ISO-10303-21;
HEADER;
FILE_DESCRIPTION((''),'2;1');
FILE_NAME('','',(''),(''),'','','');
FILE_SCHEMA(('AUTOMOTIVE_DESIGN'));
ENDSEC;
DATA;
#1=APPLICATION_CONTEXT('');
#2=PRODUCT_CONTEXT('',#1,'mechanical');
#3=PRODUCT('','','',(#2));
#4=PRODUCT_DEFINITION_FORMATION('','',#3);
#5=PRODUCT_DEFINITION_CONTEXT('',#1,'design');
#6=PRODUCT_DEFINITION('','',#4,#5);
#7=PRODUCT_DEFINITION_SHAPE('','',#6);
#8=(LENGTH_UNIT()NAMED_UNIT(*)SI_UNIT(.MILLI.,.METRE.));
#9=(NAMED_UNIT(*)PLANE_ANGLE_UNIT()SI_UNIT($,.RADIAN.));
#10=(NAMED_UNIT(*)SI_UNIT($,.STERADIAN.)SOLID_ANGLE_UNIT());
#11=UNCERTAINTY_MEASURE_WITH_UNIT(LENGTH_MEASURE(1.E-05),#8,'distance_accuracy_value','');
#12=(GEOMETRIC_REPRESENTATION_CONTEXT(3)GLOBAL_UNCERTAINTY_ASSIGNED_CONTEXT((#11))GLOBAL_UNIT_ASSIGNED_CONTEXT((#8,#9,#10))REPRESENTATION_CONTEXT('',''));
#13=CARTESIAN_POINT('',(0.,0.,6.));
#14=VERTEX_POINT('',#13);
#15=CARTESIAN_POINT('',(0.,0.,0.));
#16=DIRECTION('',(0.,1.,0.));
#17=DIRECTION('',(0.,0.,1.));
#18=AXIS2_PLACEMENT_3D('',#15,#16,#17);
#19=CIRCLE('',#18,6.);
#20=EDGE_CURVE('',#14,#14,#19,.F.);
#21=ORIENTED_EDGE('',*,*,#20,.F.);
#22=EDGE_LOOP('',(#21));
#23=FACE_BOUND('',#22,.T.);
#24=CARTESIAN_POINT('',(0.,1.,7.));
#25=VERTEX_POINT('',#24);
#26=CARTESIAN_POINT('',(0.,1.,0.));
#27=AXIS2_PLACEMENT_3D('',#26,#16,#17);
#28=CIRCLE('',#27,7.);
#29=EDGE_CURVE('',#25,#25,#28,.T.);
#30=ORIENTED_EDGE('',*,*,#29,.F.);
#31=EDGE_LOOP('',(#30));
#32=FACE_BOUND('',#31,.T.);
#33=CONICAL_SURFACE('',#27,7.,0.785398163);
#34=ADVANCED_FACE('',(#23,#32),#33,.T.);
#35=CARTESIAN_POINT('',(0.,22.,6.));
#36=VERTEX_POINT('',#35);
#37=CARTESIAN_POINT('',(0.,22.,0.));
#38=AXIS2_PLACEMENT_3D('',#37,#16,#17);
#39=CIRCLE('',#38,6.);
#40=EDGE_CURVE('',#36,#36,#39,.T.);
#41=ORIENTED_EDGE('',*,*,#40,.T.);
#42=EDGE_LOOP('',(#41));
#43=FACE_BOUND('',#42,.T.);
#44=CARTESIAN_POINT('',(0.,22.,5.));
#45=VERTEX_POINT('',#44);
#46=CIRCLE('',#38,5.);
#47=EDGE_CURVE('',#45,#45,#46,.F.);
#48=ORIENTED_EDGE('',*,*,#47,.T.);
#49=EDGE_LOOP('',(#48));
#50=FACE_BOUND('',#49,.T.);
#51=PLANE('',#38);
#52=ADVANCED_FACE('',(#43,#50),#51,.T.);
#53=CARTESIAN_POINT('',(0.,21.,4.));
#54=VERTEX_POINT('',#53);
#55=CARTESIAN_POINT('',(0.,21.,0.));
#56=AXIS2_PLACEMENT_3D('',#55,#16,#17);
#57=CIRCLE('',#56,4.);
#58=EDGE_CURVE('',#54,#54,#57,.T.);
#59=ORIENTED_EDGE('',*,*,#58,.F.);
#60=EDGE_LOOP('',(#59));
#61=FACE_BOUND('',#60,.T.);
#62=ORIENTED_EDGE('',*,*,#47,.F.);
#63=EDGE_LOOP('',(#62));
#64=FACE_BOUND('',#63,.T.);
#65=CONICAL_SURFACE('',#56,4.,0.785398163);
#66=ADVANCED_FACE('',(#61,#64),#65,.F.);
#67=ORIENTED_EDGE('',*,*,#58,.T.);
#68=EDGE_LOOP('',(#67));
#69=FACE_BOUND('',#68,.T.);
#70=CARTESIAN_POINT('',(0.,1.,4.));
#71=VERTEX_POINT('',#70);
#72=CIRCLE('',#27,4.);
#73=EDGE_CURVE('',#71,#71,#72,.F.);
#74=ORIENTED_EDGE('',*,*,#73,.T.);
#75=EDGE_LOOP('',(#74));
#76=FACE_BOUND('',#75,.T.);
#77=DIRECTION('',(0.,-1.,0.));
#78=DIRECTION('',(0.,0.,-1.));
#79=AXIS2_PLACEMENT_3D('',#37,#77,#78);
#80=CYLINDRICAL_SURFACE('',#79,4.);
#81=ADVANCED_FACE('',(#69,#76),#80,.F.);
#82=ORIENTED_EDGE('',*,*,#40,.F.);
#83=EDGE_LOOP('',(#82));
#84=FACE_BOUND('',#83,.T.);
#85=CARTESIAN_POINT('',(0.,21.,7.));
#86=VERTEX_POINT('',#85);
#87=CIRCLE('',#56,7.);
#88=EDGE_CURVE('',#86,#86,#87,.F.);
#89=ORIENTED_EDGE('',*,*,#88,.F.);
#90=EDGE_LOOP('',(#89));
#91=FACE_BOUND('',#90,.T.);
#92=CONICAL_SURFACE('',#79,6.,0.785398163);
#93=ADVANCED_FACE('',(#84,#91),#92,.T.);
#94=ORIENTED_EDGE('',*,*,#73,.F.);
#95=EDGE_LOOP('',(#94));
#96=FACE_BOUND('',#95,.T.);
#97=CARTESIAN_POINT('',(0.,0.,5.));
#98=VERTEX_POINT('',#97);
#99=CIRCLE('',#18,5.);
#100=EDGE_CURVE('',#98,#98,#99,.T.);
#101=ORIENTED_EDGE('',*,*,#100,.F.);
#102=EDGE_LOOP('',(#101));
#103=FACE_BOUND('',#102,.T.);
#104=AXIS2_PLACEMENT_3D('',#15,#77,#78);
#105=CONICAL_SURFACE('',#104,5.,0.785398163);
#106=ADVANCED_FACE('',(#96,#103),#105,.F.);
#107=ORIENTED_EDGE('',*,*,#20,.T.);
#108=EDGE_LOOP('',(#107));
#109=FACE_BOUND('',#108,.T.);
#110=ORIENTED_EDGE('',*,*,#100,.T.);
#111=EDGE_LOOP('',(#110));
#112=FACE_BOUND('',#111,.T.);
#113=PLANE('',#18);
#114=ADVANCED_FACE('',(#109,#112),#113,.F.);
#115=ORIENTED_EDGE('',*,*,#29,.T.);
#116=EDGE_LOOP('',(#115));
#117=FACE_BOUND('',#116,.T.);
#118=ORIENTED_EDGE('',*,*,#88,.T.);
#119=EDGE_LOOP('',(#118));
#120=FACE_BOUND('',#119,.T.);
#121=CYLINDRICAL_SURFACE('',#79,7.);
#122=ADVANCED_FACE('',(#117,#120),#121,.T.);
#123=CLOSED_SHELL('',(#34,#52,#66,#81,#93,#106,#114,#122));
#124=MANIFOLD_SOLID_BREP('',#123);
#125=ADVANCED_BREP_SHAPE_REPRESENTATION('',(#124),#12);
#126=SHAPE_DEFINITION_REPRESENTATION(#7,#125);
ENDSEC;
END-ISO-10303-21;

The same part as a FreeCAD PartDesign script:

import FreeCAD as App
import Part
import Sketcher
Q = App.Units.Quantity


def edges_at(feature, points):
    """Names of the edges that pass closest to the given points."""
    edges = feature.Shape.Edges
    near = lambda p: min(range(len(edges)), key=lambda i: edges[i].distToShape(Part.Vertex(*p))[0])
    return sorted({f"Edge{near(p) + 1}" for p in points})

doc = App.newDocument("Part")
body = doc.addObject("PartDesign::Body", "Body")

sketch1 = doc.addObject("Sketcher::SketchObject", "Sketch")
body.addObject(sketch1)
sketch1.AttachmentSupport = (doc.XZ_Plane, [""])
sketch1.MapMode = "FlatFace"
sketch1.addGeometry([
    Part.Circle(App.Vector(0, 0, 0), App.Vector(0, 0, 1), 7),
    Part.Circle(App.Vector(0, 0, 0), App.Vector(0, 0, 1), 4),
], False)
sketch1.addConstraint([
    Sketcher.Constraint("Coincident", 0, 3, -1, 1),
    Sketcher.Constraint("Coincident", 1, 3, -1, 1),
    Sketcher.Constraint("Diameter", 0, Q("14 mm")),
    Sketcher.Constraint("Diameter", 1, Q("8 mm")),
])
pad1 = doc.addObject("PartDesign::Pad", "Pad")
body.addObject(pad1)
pad1.Profile = sketch1
pad1.Length = 22
pad1.Reversed = True
doc.recompute()

chamfer = doc.addObject("PartDesign::Chamfer", "Chamfer")
body.addObject(chamfer)
chamfer.Base = (pad1, edges_at(pad1, [
    (-7, 0, 0),
    (-7, 22, 0),
    (-4, 0, 0),
    (-4, 22, 0),
]))
chamfer.Size = 1

doc.recompute()
